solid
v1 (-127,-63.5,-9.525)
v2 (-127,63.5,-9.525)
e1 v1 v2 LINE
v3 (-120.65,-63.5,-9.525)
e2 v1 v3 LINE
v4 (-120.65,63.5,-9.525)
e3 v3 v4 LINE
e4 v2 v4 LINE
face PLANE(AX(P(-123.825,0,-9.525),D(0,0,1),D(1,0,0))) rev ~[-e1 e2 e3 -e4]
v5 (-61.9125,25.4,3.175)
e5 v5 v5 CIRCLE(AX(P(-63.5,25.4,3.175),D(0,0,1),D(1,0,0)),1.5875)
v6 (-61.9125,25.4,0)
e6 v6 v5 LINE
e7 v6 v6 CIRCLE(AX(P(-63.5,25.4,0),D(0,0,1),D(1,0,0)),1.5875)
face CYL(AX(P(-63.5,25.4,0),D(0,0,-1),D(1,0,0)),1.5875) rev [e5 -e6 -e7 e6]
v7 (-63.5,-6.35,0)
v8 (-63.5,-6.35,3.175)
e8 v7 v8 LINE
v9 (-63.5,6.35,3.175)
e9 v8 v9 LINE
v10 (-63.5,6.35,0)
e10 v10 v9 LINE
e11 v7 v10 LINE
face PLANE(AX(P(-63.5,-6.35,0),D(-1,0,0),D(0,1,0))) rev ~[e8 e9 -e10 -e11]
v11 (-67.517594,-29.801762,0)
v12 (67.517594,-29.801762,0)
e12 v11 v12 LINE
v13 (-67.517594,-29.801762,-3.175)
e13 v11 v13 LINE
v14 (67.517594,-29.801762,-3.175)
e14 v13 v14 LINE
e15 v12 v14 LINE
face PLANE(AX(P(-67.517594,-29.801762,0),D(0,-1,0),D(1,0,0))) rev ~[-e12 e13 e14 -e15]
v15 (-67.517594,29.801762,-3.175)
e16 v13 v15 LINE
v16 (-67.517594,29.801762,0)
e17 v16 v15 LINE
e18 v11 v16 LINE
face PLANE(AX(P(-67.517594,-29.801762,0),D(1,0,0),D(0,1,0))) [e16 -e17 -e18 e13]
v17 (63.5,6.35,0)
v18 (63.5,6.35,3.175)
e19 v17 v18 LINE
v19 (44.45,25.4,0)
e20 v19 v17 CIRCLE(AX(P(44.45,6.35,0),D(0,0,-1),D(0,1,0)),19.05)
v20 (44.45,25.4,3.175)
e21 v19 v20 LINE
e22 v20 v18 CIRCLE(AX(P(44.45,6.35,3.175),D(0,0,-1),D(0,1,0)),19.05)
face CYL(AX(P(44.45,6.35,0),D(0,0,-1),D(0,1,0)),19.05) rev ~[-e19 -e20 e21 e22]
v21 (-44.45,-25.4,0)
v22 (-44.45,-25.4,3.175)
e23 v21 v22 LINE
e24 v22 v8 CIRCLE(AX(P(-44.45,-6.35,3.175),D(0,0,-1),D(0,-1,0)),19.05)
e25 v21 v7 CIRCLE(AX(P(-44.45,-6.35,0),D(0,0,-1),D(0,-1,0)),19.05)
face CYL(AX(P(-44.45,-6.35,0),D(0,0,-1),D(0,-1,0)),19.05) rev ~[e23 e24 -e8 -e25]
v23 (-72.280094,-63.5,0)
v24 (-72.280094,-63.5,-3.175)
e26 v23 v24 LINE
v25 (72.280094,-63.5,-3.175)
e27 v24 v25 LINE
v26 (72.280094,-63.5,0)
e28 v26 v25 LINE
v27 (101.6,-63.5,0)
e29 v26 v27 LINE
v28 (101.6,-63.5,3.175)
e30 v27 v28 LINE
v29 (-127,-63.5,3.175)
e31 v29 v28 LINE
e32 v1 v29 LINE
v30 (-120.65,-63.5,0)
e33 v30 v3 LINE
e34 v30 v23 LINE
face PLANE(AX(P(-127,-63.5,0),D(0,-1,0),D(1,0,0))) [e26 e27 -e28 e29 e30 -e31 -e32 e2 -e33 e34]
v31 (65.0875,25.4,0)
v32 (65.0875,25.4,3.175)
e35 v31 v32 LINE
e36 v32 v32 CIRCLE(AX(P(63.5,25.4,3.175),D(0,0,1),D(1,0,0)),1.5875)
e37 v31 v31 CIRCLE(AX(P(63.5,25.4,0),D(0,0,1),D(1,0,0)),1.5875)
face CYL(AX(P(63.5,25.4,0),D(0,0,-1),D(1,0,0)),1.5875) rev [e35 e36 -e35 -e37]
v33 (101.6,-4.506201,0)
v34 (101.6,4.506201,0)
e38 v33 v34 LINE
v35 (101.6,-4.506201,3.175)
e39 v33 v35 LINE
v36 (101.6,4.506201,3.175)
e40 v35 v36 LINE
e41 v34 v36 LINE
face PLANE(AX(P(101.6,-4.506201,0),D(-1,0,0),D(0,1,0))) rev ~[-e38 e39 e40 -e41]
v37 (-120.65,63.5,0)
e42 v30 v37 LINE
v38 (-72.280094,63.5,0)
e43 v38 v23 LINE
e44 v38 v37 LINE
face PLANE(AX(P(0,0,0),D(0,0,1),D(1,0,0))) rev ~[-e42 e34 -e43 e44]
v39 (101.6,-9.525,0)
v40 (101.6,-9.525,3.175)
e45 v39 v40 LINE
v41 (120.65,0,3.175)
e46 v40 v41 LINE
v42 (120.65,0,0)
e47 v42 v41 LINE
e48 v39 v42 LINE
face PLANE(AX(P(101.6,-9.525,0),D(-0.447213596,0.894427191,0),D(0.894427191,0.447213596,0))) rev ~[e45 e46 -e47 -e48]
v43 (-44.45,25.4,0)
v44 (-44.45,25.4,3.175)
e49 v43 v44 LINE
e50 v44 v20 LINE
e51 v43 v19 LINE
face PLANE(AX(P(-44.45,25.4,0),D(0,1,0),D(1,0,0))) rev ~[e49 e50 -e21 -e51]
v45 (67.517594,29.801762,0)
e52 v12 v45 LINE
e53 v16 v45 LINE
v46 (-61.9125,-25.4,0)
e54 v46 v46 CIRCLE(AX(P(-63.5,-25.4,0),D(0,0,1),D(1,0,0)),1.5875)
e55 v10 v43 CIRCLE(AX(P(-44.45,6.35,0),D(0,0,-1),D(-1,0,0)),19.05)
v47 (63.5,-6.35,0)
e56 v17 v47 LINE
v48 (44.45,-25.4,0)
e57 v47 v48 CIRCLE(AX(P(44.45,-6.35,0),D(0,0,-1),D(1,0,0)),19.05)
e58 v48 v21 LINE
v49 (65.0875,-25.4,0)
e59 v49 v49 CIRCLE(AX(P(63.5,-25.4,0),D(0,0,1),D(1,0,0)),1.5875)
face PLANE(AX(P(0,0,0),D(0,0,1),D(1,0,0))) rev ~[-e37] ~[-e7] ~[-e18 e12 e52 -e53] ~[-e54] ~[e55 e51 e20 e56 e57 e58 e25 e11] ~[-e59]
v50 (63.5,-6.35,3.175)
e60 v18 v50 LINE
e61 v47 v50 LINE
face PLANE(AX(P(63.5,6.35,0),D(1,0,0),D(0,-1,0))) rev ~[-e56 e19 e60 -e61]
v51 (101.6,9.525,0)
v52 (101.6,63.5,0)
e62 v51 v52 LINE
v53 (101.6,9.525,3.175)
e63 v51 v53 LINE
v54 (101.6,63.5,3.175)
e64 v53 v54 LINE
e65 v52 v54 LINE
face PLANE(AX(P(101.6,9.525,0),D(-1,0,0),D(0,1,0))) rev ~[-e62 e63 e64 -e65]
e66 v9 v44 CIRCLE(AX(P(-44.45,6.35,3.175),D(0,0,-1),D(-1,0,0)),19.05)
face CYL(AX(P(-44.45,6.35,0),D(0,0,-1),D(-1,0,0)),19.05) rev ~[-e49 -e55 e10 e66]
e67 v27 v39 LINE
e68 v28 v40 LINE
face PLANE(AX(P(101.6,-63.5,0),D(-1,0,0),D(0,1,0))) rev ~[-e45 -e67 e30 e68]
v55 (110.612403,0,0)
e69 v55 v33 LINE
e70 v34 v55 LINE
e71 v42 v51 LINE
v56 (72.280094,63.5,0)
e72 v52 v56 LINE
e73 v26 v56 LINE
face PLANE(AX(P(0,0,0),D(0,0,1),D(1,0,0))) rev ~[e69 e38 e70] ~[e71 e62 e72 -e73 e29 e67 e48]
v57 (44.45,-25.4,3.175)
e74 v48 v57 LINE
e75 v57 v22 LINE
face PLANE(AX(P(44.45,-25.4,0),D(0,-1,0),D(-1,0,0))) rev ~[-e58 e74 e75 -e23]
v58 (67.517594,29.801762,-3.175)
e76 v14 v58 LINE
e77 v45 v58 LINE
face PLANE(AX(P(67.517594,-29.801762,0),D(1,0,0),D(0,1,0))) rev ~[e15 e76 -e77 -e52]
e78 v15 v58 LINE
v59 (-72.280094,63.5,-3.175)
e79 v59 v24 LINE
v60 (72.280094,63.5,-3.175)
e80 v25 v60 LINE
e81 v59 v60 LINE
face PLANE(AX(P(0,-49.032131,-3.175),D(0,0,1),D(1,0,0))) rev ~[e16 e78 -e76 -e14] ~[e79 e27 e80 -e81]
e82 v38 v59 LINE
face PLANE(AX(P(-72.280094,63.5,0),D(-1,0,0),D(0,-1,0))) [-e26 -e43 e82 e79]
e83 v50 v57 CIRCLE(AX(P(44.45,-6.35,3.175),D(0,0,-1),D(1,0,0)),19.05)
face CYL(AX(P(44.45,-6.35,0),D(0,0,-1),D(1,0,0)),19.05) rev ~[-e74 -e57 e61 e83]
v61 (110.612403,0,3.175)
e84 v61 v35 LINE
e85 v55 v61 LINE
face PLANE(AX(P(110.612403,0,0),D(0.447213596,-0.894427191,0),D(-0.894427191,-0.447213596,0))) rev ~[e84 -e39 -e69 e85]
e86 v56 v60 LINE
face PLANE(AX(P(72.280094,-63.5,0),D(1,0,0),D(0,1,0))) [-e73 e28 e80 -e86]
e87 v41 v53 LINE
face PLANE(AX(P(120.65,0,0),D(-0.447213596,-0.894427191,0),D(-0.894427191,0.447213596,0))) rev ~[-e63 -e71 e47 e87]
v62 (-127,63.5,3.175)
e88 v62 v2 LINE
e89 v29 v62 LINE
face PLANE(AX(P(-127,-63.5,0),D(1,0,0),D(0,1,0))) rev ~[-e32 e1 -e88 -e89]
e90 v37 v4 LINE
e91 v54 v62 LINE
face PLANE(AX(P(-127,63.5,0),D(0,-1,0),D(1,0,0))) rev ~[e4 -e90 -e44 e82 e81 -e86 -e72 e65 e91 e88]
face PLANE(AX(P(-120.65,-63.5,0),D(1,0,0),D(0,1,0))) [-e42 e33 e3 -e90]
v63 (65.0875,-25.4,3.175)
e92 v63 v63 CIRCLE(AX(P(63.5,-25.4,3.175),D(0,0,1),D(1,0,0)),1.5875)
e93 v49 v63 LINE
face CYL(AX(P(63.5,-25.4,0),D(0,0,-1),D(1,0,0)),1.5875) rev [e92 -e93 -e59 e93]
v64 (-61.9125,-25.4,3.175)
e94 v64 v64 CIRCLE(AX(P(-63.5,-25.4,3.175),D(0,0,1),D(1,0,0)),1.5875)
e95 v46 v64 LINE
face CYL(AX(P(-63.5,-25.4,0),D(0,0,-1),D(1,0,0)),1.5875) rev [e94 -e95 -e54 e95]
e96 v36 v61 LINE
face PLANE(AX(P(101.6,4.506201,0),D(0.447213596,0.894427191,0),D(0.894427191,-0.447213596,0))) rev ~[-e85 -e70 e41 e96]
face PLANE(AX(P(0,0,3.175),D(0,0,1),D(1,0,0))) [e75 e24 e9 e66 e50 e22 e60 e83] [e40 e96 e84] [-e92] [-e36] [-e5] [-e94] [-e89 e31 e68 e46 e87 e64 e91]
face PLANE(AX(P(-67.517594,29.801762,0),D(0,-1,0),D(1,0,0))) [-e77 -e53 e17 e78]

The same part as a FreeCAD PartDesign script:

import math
import FreeCAD as App
import Part
import Sketcher
from FreeCAD import Vector
Q = App.Units.Quantity

doc = App.newDocument("Part")
body = doc.addObject("PartDesign::Body", "Body")

# Sketch on XY plane
sketch1 = doc.addObject("Sketcher::SketchObject", "Sketch")
body.addObject(sketch1)
sketch1.AttachmentSupport = (doc.XY_Plane, [""])
sketch1.MapMode = "FlatFace"
sketch1.addGeometry([
    Part.LineSegment(Vector(101.6, 9.5, 0), Vector(101.6, 63.5, 0)),  # 0
    Part.LineSegment(Vector(101.6, 63.5, 0), Vector(-127, 63.5, 0)),  # 1
    Part.LineSegment(Vector(-127, 63.5, 0), Vector(-127, -63.5, 0)),  # 2
    Part.LineSegment(Vector(-127, -63.5, 0), Vector(101.6, -63.5, 0)),  # 3
    Part.LineSegment(Vector(101.6, -63.5, 0), Vector(101.6, -9.5, 0)),  # 4
    Part.LineSegment(Vector(101.6, -9.5, 0), Vector(120.7, 0, 0)),  # 5
    Part.LineSegment(Vector(120.7, 0, 0), Vector(101.6, 9.5, 0)),  # 6
    Part.Circle(Vector(-63.5, -25.4, 0), Vector(0, 0, 1), 1.6),  # 7
    Part.Circle(Vector(63.5, -25.4, 0), Vector(0, 0, 1), 1.6),  # 8
    Part.LineSegment(Vector(63.5, 6.3, 0), Vector(63.5, -6.3, 0)),  # 9
    Part.ArcOfCircle(Part.Circle(Vector(44.5, -6.3, 0), Vector(0, 0, 1), 19.1), math.radians(-90), math.radians(0)),  # 10
    Part.LineSegment(Vector(44.5, -25.4, 0), Vector(-44.5, -25.4, 0)),  # 11
    Part.ArcOfCircle(Part.Circle(Vector(-44.5, -6.3, 0), Vector(0, 0, 1), 19.1), math.radians(180), math.radians(270)),  # 12
    Part.LineSegment(Vector(-63.5, -6.3, 0), Vector(-63.5, 6.3, 0)),  # 13
    Part.ArcOfCircle(Part.Circle(Vector(-44.5, 6.3, 0), Vector(0, 0, 1), 19.1), math.radians(90), math.radians(180)),  # 14
    Part.LineSegment(Vector(-44.5, 25.4, 0), Vector(44.5, 25.4, 0)),  # 15
    Part.ArcOfCircle(Part.Circle(Vector(44.5, 6.3, 0), Vector(0, 0, 1), 19.1), math.radians(0), math.radians(90)),  # 16
    Part.Circle(Vector(-63.5, 25.4, 0), Vector(0, 0, 1), 1.6),  # 17
    Part.LineSegment(Vector(101.6, 4.5, 0), Vector(110.6, 0, 0)),  # 18
    Part.LineSegment(Vector(110.6, 0, 0), Vector(101.6, -4.5, 0)),  # 19
    Part.LineSegment(Vector(101.6, -4.5, 0), Vector(101.6, 4.5, 0)),  # 20
    Part.Circle(Vector(63.5, 25.4, 0), Vector(0, 0, 1), 1.6),  # 21
], False)
sketch1.addConstraint([
    Sketcher.Constraint("Coincident", 0, 2, 1, 1),
    Sketcher.Constraint("Coincident", 1, 2, 2, 1),
    Sketcher.Constraint("Coincident", 2, 2, 3, 1),
    Sketcher.Constraint("Coincident", 3, 2, 4, 1),
    Sketcher.Constraint("Coincident", 4, 2, 5, 1),
    Sketcher.Constraint("Coincident", 5, 2, 6, 1),
    Sketcher.Constraint("Coincident", 6, 2, 0, 1),
    Sketcher.Constraint("Tangent", 9, 2, 10, 2),
    Sketcher.Constraint("Tangent", 10, 1, 11, 1),
    Sketcher.Constraint("Tangent", 11, 2, 12, 2),
    Sketcher.Constraint("Tangent", 12, 1, 13, 1),
    Sketcher.Constraint("Tangent", 13, 2, 14, 2),
    Sketcher.Constraint("Tangent", 14, 1, 15, 1),
    Sketcher.Constraint("Tangent", 15, 2, 16, 2),
    Sketcher.Constraint("Tangent", 16, 1, 9, 1),
    Sketcher.Constraint("Coincident", 18, 2, 19, 1),
    Sketcher.Constraint("Coincident", 19, 2, 20, 1),
    Sketcher.Constraint("Coincident", 20, 2, 18, 1),
    Sketcher.Constraint("Vertical", 0),
    Sketcher.Constraint("Horizontal", 1),
    Sketcher.Constraint("Vertical", 2),
    Sketcher.Constraint("Horizontal", 3),
    Sketcher.Constraint("Vertical", 4),
    Sketcher.Constraint("Vertical", 9),
    Sketcher.Constraint("Horizontal", 11),
    Sketcher.Constraint("Vertical", 13),
    Sketcher.Constraint("Horizontal", 15),
    Sketcher.Constraint("Vertical", 20),
    Sketcher.Constraint("Equal", 7, 8),
    Sketcher.Constraint("Equal", 10, 12),
    Sketcher.Constraint("Equal", 12, 14),
    Sketcher.Constraint("Equal", 14, 16),
    Sketcher.Constraint("Equal", 8, 17),
    Sketcher.Constraint("Equal", 17, 21),
    Sketcher.Constraint("Symmetric", 10, 3, 14, 3, -1, 1),
    Sketcher.Constraint("Symmetric", 8, 3, 17, 3, -1, 1),
    Sketcher.Constraint("Symmetric", 7, 3, 21, 3, -1, 1),
    Sketcher.Constraint("Symmetric", 7, 3, 8, 3, -2),
    Sketcher.Constraint("Symmetric", 0, 2, 3, 2, -1),
    Sketcher.Constraint("PointOnObject", 5, 2, -1),
    Sketcher.Constraint("PointOnObject", 18, 2, -1),
    Sketcher.Constraint("Parallel", 6, 18),
    Sketcher.Constraint("Parallel", 5, 19),
    Sketcher.Constraint("Horizontal", 8, 3, 10, 1),
    Sketcher.Constraint("Vertical", 21, 3, 9, 2),
    Sketcher.Constraint("Vertical", 6, 2, 19, 2),
    Sketcher.Constraint("Equal", 0, 4),
    Sketcher.Constraint("DistanceX", 1, 2, 1, 1, Q("9 in")),
    Sketcher.Constraint("DistanceY", 2, 2, 2, 1, Q("5 in")),
    Sketcher.Constraint("Radius", 10, Q("0.75 in")),
    Sketcher.Constraint("Diameter", 7, Q("0.125 in")),
    Sketcher.Constraint("DistanceX", 11, 2, 11, 1, Q("3.5 in")),
    Sketcher.Constraint("DistanceY", 9, 2, 9, 1, Q("0.5 in")),
    Sketcher.Constraint("DistanceX", -1, 1, 0, 2, Q("4 in")),
    Sketcher.Constraint("DistanceY", 0, 1, 0, 2, Q("2.125 in")),
    Sketcher.Constraint("DistanceX", -1, 1, 5, 2, Q("4.75 in")),
    Sketcher.Constraint("DistanceY", 19, 2, -1, 1, Q("4.506201 mm")),
])
pad1 = doc.addObject("PartDesign::Pad", "Pad")
body.addObject(pad1)
pad1.Profile = sketch1
pad1.Length = Q("0.125 in")

# Sketch on XY plane
sketch2 = doc.addObject("Sketcher::SketchObject", "Sketch001")
body.addObject(sketch2)
sketch2.AttachmentSupport = (doc.XY_Plane, [""])
sketch2.MapMode = "FlatFace"
sketch2.addGeometry([
    Part.LineSegment(Vector(-72, -64, 0), Vector(72, -64, 0)),  # 0
    Part.LineSegment(Vector(72, -64, 0), Vector(72, 64, 0)),  # 1
    Part.LineSegment(Vector(72, 64, 0), Vector(-72, 64, 0)),  # 2
    Part.LineSegment(Vector(-72, 64, 0), Vector(-72, -64, 0)),  # 3
    Part.LineSegment(Vector(68, -30, 0), Vector(-68, -30, 0)),  # 4
    Part.LineSegment(Vector(-68, -30, 0), Vector(-68, 30, 0)),  # 5
    Part.LineSegment(Vector(-68, 30, 0), Vector(68, 30, 0)),  # 6
    Part.LineSegment(Vector(68, 30, 0), Vector(68, -30, 0)),  # 7
], False)
sketch2.addConstraint([
    Sketcher.Constraint("Coincident", 0, 2, 1, 1),
    Sketcher.Constraint("Coincident", 1, 2, 2, 1),
    Sketcher.Constraint("Coincident", 2, 2, 3, 1),
    Sketcher.Constraint("Coincident", 3, 2, 0, 1),
    Sketcher.Constraint("Coincident", 4, 2, 5, 1),
    Sketcher.Constraint("Coincident", 5, 2, 6, 1),
    Sketcher.Constraint("Coincident", 6, 2, 7, 1),
    Sketcher.Constraint("Coincident", 7, 2, 4, 1),
    Sketcher.Constraint("Horizontal", 0),
    Sketcher.Constraint("Vertical", 1),
    Sketcher.Constraint("Horizontal", 2),
    Sketcher.Constraint("Vertical", 3),
    Sketcher.Constraint("Horizontal", 4),
    Sketcher.Constraint("Vertical", 5),
    Sketcher.Constraint("Horizontal", 6),
    Sketcher.Constraint("Vertical", 7),
    Sketcher.Constraint("Symmetric", 0, 2, 2, 2, -1, 1),
    Sketcher.Constraint("Symmetric", 4, 2, 6, 2, -1, 1),
    Sketcher.Constraint("DistanceY", 1, 1, 1, 2, Q("5 in")),
    Sketcher.Constraint("DistanceX", 3, 2, 4, 2, Q("0.1875 in")),
    Sketcher.Constraint("DistanceX", 0, 1, 0, 2, Q("144.560187 mm")),
    Sketcher.Constraint("DistanceY", 5, 1, 5, 2, Q("59.603523 mm")),
])
pad2 = doc.addObject("PartDesign::Pad", "Pad001")
body.addObject(pad2)
pad2.Profile = sketch2
pad2.Length = Q("0.125 in")
pad2.Reversed = True

# Sketch on XY plane
sketch3 = doc.addObject("Sketcher::SketchObject", "Sketch002")
body.addObject(sketch3)
sketch3.AttachmentSupport = (doc.XY_Plane, [""])
sketch3.MapMode = "FlatFace"
sketch3.addGeometry([
    Part.LineSegment(Vector(-127, 64, 0), Vector(-127, -64, 0)),
    Part.LineSegment(Vector(-127, -64, 0), Vector(-121, -64, 0)),
    Part.LineSegment(Vector(-121, -64, 0), Vector(-121, 64, 0)),
    Part.LineSegment(Vector(-121, 64, 0), Vector(-127, 64, 0)),
], False)
sketch3.addConstraint([
    Sketcher.Constraint("Coincident", 0, 2, 1, 1),
    Sketcher.Constraint("Coincident", 1, 2, 2, 1),
    Sketcher.Constraint("Coincident", 2, 2, 3, 1),
    Sketcher.Constraint("Coincident", 3, 2, 0, 1),
    Sketcher.Constraint("Vertical", 0),
    Sketcher.Constraint("Horizontal", 1),
    Sketcher.Constraint("Vertical", 2),
    Sketcher.Constraint("Horizontal", 3),
    Sketcher.Constraint("DistanceY", 0, 2, 0, 1, Q("5 in")),
    Sketcher.Constraint("DistanceX", 0, 2, -1, 1, Q("5 in")),
    Sketcher.Constraint("DistanceX", 1, 1, 1, 2, Q("0.25 in")),
    Sketcher.Constraint("DistanceY", 0, 2, -1, 1, Q("2.5 in")),
])
pad3 = doc.addObject("PartDesign::Pad", "Pad002")
body.addObject(pad3)
pad3.Profile = sketch3
pad3.Length = Q("0.375 in")
pad3.Reversed = True

doc.recompute()
